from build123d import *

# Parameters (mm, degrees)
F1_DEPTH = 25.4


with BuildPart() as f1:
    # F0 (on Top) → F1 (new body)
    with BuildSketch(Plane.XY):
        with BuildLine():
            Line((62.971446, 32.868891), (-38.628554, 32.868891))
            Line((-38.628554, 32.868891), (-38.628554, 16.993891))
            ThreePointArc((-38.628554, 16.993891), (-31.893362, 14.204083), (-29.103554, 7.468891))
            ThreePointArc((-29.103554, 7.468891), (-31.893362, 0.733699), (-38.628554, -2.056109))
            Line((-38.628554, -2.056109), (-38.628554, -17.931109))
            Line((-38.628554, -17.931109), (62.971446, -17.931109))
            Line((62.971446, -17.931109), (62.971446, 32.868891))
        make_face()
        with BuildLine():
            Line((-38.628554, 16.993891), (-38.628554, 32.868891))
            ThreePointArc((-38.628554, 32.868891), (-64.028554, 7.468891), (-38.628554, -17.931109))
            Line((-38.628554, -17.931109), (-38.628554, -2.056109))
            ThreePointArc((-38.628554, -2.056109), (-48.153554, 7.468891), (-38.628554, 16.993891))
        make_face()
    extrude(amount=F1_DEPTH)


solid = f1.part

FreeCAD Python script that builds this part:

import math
import FreeCAD as App
import Part
import Sketcher
from FreeCAD import Vector
Q = App.Units.Quantity

doc = App.newDocument("Part")
body = doc.addObject("PartDesign::Body", "Body")

# Sketch on XY plane
sketch1 = doc.addObject("Sketcher::SketchObject", "Sketch")
body.addObject(sketch1)
sketch1.AttachmentSupport = (doc.XY_Plane, [""])
sketch1.MapMode = "FlatFace"
sketch1.addGeometry(Part.LineSegment(Vector(63, 33, 0), Vector(-39, 33, 0)), False)
sketch1.addGeometry(Part.ArcOfCircle(Part.Circle(Vector(-39, 7, 0), Vector(0, 0, 1), 25), math.radians(90), math.radians(270)), False)
sketch1.addGeometry(Part.LineSegment(Vector(-39, -18, 0), Vector(63, -18, 0)), False)
sketch1.addGeometry(Part.LineSegment(Vector(63, -18, 0), Vector(63, 33, 0)), False)
sketch1.addGeometry(Part.ArcOfCircle(Part.Circle(Vector(-39, 7, 0), Vector(0, 0, 1), 10), math.radians(0), math.radians(90)), False)
sketch1.addGeometry(Part.ArcOfCircle(Part.Circle(Vector(-39, 7, 0), Vector(0, 0, 1), 10), math.radians(-90), math.radians(0)), False)
sketch1.addGeometry(Part.ArcOfCircle(Part.Circle(Vector(-39, 7, 0), Vector(0, 0, 1), 10), math.radians(90), math.radians(270)), False)
sketch1.addConstraint(Sketcher.Constraint("Tangent", 0, 2, 1, 1))
sketch1.addConstraint(Sketcher.Constraint("Tangent", 1, 2, 2, 1))
sketch1.addConstraint(Sketcher.Constraint("Coincident", 2, 2, 3, 1))
sketch1.addConstraint(Sketcher.Constraint("Coincident", 3, 2, 0, 1))
sketch1.addConstraint(Sketcher.Constraint("Tangent", 4, 1, 5, 2))
sketch1.addConstraint(Sketcher.Constraint("Tangent", 5, 1, 6, 2))
sketch1.addConstraint(Sketcher.Constraint("Tangent", 6, 1, 4, 2))
sketch1.addConstraint(Sketcher.Constraint("Horizontal", 0))
sketch1.addConstraint(Sketcher.Constraint("Horizontal", 2))
sketch1.addConstraint(Sketcher.Constraint("Vertical", 3))
sketch1.addConstraint(Sketcher.Constraint("Coincident", 4, 3, 1, 3))
sketch1.addConstraint(Sketcher.Constraint("Horizontal", 6, 3, 4, 1))
sketch1.addConstraint(Sketcher.Constraint("Vertical", 1, 2, 5, 1))
sketch1.addConstraint(Sketcher.Constraint("Vertical", 5, 1, 6, 1))
sketch1.addConstraint(Sketcher.Constraint("Radius", 1, Q("1 in")))
sketch1.addConstraint(Sketcher.Constraint("DistanceX", 0, 2, 0, 1, Q("4 in")))
sketch1.addConstraint(Sketcher.Constraint("Radius", 4, Q("0.375 in")))
sketch1.addConstraint(Sketcher.Constraint("DistanceY", -1, 1, 1, 3, Q("7.468891 mm")))
sketch1.addConstraint(Sketcher.Constraint("DistanceX", 1, 3, -1, 1, Q("38.628554 mm")))
pad1 = doc.addObject("PartDesign::Pad", "Pad")
body.addObject(pad1)
pad1.Profile = sketch1
pad1.Length = Q("1 in")

doc.recompute()
